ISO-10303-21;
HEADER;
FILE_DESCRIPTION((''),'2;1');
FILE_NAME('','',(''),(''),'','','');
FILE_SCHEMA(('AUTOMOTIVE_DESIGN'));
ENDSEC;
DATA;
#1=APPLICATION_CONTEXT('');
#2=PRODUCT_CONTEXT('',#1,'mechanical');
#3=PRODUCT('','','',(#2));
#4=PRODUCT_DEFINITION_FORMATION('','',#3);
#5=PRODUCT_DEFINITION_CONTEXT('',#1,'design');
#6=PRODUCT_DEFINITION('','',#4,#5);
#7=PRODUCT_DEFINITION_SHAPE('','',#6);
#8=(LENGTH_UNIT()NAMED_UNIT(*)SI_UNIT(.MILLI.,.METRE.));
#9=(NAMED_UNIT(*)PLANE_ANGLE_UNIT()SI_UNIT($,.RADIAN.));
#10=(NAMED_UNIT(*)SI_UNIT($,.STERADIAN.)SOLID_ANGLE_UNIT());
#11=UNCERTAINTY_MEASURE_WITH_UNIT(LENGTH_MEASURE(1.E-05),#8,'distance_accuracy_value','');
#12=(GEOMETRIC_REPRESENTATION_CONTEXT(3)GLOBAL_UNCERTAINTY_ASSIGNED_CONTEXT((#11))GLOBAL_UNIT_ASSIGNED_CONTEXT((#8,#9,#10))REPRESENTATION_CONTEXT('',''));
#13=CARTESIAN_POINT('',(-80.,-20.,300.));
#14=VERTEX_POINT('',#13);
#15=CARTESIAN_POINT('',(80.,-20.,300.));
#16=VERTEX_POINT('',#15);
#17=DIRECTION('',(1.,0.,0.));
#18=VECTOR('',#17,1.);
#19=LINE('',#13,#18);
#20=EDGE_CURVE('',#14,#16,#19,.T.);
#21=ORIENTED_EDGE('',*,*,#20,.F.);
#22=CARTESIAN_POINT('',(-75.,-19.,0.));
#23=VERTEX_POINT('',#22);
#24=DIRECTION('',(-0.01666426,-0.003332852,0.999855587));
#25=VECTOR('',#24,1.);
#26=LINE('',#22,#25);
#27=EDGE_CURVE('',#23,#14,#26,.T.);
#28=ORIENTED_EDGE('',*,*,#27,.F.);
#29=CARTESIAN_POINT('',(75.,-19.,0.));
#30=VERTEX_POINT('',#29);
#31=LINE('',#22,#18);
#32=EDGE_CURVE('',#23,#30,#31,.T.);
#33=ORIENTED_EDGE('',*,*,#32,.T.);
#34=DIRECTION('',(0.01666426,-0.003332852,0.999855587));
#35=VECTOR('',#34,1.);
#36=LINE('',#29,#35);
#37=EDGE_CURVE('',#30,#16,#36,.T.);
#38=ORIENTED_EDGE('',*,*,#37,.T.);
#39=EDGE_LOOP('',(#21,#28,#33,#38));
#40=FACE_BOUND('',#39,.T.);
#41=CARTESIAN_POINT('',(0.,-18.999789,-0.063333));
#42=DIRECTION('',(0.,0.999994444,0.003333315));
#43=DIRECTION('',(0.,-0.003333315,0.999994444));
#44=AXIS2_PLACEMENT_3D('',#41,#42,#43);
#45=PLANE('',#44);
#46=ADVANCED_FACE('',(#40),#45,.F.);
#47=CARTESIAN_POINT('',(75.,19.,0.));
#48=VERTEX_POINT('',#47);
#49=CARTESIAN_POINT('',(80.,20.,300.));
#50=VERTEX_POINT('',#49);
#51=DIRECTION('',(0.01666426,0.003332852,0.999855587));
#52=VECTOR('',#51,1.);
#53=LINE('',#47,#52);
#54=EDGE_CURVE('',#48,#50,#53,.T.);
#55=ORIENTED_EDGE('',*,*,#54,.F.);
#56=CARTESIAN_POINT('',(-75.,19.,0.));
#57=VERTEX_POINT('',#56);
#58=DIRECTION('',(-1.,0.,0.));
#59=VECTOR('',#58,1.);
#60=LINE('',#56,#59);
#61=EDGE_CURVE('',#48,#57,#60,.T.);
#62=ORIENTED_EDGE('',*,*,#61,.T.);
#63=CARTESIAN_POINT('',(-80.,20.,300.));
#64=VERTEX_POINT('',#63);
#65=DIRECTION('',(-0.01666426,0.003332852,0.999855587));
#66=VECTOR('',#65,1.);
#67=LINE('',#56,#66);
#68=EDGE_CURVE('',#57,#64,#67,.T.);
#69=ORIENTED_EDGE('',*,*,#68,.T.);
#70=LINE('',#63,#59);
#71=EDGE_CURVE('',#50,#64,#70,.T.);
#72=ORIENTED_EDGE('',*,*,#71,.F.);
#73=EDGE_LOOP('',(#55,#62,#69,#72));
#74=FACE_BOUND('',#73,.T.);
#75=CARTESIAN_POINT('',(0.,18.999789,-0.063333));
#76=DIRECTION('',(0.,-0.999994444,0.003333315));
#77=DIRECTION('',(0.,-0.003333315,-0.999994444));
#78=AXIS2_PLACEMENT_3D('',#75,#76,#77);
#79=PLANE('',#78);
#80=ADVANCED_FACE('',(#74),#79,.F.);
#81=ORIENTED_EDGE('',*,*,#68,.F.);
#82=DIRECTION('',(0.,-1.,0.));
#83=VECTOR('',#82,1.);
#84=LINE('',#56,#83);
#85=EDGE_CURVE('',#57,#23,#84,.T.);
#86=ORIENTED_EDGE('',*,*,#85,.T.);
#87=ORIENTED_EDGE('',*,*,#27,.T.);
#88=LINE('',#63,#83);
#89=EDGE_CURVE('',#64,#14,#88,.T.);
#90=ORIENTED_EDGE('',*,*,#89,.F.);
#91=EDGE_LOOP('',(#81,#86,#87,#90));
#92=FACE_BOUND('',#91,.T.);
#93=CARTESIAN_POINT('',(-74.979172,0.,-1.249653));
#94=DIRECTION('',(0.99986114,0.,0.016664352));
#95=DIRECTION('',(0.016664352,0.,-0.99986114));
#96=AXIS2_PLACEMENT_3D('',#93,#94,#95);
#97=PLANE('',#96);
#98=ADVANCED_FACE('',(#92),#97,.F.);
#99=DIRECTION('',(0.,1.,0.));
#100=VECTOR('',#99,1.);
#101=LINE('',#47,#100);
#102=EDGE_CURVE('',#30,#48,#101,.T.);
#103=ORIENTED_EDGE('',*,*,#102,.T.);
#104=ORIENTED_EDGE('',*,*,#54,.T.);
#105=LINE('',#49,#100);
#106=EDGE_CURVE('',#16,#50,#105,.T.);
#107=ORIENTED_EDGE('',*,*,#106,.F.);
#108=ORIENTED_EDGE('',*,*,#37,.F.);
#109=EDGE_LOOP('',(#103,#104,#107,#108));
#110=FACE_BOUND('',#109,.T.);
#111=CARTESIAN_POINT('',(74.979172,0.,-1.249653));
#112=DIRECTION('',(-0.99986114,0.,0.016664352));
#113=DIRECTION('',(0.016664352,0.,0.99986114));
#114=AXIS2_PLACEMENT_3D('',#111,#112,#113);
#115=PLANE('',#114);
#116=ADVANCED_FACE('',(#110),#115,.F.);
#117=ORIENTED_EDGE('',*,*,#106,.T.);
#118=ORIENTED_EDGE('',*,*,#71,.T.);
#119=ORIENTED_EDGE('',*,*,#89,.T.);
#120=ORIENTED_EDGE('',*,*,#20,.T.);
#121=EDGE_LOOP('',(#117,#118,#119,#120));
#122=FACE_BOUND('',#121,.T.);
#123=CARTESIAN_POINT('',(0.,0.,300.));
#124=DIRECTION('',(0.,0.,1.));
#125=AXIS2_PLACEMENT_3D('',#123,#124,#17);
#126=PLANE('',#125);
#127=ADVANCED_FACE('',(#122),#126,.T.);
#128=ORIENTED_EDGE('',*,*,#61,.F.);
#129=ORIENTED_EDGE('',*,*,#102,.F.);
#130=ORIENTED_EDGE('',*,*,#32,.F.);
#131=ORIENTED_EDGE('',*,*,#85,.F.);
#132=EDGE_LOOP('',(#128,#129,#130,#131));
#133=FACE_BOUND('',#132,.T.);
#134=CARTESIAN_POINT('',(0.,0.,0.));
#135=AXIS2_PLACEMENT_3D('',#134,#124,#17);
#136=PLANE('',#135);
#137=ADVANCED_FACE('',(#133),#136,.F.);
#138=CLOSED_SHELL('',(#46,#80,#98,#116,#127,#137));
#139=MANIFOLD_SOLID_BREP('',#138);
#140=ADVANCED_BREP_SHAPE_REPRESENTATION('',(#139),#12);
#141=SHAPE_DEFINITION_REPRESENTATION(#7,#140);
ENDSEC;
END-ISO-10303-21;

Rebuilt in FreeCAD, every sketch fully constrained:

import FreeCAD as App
import Part
import Sketcher

doc = App.newDocument("Part")
body = doc.addObject("PartDesign::Body", "Body")

# Sketch on XY plane
sketch1 = doc.addObject("Sketcher::SketchObject", "Sketch")
body.addObject(sketch1)
sketch1.AttachmentSupport = (doc.XY_Plane, [""])
sketch1.MapMode = "FlatFace"
sketch1.addGeometry(Part.LineSegment(App.Vector(-75, 19, 0), App.Vector(-75, -19, 0)), False)
sketch1.addGeometry(Part.LineSegment(App.Vector(-75, -19, 0), App.Vector(75, -19, 0)), False)
sketch1.addGeometry(Part.LineSegment(App.Vector(75, -19, 0), App.Vector(75, 19, 0)), False)
sketch1.addGeometry(Part.LineSegment(App.Vector(75, 19, 0), App.Vector(-75, 19, 0)), False)
sketch1.addConstraint(Sketcher.Constraint("Coincident", 0, 2, 1, 1))
sketch1.addConstraint(Sketcher.Constraint("Coincident", 1, 2, 2, 1))
sketch1.addConstraint(Sketcher.Constraint("Coincident", 2, 2, 3, 1))
sketch1.addConstraint(Sketcher.Constraint("Coincident", 3, 2, 0, 1))
sketch1.addConstraint(Sketcher.Constraint("Vertical", 0))
sketch1.addConstraint(Sketcher.Constraint("Horizontal", 1))
sketch1.addConstraint(Sketcher.Constraint("Vertical", 2))
sketch1.addConstraint(Sketcher.Constraint("Horizontal", 3))
sketch1.addConstraint(Sketcher.Constraint("Symmetric", 0, 2, 2, 2, -1, 1))
sketch1.addConstraint(Sketcher.Constraint("DistanceX", 1, 1, 1, 2, 150.0))
sketch1.addConstraint(Sketcher.Constraint("DistanceY", 0, 2, 0, 1, 38.0))

# Sketch on XY plane
sketch2 = doc.addObject("Sketcher::SketchObject", "Sketch001")
body.addObject(sketch2)
sketch2.AttachmentSupport = (doc.XY_Plane, [""])
sketch2.MapMode = "FlatFace"
sketch2.AttachmentOffset = App.Placement(App.Vector(0, 0, 300), App.Rotation())
sketch2.addGeometry(Part.LineSegment(App.Vector(-80, 20, 0), App.Vector(-80, -20, 0)), False)
sketch2.addGeometry(Part.LineSegment(App.Vector(-80, -20, 0), App.Vector(80, -20, 0)), False)
sketch2.addGeometry(Part.LineSegment(App.Vector(80, -20, 0), App.Vector(80, 20, 0)), False)
sketch2.addGeometry(Part.LineSegment(App.Vector(80, 20, 0), App.Vector(-80, 20, 0)), False)
sketch2.addConstraint(Sketcher.Constraint("Coincident", 0, 2, 1, 1))
sketch2.addConstraint(Sketcher.Constraint("Coincident", 1, 2, 2, 1))
sketch2.addConstraint(Sketcher.Constraint("Coincident", 2, 2, 3, 1))
sketch2.addConstraint(Sketcher.Constraint("Coincident", 3, 2, 0, 1))
sketch2.addConstraint(Sketcher.Constraint("Vertical", 0))
sketch2.addConstraint(Sketcher.Constraint("Horizontal", 1))
sketch2.addConstraint(Sketcher.Constraint("Vertical", 2))
sketch2.addConstraint(Sketcher.Constraint("Horizontal", 3))
sketch2.addConstraint(Sketcher.Constraint("Symmetric", 0, 2, 2, 2, -1, 1))
sketch2.addConstraint(Sketcher.Constraint("DistanceX", 1, 1, 1, 2, 160.0))
sketch2.addConstraint(Sketcher.Constraint("DistanceY", 0, 2, 0, 1, 40.0))

additiveloft = doc.addObject("PartDesign::AdditiveLoft", "AdditiveLoft")
body.addObject(additiveloft)
additiveloft.Profile = sketch1
additiveloft.Sections = [sketch2]

doc.recompute()
